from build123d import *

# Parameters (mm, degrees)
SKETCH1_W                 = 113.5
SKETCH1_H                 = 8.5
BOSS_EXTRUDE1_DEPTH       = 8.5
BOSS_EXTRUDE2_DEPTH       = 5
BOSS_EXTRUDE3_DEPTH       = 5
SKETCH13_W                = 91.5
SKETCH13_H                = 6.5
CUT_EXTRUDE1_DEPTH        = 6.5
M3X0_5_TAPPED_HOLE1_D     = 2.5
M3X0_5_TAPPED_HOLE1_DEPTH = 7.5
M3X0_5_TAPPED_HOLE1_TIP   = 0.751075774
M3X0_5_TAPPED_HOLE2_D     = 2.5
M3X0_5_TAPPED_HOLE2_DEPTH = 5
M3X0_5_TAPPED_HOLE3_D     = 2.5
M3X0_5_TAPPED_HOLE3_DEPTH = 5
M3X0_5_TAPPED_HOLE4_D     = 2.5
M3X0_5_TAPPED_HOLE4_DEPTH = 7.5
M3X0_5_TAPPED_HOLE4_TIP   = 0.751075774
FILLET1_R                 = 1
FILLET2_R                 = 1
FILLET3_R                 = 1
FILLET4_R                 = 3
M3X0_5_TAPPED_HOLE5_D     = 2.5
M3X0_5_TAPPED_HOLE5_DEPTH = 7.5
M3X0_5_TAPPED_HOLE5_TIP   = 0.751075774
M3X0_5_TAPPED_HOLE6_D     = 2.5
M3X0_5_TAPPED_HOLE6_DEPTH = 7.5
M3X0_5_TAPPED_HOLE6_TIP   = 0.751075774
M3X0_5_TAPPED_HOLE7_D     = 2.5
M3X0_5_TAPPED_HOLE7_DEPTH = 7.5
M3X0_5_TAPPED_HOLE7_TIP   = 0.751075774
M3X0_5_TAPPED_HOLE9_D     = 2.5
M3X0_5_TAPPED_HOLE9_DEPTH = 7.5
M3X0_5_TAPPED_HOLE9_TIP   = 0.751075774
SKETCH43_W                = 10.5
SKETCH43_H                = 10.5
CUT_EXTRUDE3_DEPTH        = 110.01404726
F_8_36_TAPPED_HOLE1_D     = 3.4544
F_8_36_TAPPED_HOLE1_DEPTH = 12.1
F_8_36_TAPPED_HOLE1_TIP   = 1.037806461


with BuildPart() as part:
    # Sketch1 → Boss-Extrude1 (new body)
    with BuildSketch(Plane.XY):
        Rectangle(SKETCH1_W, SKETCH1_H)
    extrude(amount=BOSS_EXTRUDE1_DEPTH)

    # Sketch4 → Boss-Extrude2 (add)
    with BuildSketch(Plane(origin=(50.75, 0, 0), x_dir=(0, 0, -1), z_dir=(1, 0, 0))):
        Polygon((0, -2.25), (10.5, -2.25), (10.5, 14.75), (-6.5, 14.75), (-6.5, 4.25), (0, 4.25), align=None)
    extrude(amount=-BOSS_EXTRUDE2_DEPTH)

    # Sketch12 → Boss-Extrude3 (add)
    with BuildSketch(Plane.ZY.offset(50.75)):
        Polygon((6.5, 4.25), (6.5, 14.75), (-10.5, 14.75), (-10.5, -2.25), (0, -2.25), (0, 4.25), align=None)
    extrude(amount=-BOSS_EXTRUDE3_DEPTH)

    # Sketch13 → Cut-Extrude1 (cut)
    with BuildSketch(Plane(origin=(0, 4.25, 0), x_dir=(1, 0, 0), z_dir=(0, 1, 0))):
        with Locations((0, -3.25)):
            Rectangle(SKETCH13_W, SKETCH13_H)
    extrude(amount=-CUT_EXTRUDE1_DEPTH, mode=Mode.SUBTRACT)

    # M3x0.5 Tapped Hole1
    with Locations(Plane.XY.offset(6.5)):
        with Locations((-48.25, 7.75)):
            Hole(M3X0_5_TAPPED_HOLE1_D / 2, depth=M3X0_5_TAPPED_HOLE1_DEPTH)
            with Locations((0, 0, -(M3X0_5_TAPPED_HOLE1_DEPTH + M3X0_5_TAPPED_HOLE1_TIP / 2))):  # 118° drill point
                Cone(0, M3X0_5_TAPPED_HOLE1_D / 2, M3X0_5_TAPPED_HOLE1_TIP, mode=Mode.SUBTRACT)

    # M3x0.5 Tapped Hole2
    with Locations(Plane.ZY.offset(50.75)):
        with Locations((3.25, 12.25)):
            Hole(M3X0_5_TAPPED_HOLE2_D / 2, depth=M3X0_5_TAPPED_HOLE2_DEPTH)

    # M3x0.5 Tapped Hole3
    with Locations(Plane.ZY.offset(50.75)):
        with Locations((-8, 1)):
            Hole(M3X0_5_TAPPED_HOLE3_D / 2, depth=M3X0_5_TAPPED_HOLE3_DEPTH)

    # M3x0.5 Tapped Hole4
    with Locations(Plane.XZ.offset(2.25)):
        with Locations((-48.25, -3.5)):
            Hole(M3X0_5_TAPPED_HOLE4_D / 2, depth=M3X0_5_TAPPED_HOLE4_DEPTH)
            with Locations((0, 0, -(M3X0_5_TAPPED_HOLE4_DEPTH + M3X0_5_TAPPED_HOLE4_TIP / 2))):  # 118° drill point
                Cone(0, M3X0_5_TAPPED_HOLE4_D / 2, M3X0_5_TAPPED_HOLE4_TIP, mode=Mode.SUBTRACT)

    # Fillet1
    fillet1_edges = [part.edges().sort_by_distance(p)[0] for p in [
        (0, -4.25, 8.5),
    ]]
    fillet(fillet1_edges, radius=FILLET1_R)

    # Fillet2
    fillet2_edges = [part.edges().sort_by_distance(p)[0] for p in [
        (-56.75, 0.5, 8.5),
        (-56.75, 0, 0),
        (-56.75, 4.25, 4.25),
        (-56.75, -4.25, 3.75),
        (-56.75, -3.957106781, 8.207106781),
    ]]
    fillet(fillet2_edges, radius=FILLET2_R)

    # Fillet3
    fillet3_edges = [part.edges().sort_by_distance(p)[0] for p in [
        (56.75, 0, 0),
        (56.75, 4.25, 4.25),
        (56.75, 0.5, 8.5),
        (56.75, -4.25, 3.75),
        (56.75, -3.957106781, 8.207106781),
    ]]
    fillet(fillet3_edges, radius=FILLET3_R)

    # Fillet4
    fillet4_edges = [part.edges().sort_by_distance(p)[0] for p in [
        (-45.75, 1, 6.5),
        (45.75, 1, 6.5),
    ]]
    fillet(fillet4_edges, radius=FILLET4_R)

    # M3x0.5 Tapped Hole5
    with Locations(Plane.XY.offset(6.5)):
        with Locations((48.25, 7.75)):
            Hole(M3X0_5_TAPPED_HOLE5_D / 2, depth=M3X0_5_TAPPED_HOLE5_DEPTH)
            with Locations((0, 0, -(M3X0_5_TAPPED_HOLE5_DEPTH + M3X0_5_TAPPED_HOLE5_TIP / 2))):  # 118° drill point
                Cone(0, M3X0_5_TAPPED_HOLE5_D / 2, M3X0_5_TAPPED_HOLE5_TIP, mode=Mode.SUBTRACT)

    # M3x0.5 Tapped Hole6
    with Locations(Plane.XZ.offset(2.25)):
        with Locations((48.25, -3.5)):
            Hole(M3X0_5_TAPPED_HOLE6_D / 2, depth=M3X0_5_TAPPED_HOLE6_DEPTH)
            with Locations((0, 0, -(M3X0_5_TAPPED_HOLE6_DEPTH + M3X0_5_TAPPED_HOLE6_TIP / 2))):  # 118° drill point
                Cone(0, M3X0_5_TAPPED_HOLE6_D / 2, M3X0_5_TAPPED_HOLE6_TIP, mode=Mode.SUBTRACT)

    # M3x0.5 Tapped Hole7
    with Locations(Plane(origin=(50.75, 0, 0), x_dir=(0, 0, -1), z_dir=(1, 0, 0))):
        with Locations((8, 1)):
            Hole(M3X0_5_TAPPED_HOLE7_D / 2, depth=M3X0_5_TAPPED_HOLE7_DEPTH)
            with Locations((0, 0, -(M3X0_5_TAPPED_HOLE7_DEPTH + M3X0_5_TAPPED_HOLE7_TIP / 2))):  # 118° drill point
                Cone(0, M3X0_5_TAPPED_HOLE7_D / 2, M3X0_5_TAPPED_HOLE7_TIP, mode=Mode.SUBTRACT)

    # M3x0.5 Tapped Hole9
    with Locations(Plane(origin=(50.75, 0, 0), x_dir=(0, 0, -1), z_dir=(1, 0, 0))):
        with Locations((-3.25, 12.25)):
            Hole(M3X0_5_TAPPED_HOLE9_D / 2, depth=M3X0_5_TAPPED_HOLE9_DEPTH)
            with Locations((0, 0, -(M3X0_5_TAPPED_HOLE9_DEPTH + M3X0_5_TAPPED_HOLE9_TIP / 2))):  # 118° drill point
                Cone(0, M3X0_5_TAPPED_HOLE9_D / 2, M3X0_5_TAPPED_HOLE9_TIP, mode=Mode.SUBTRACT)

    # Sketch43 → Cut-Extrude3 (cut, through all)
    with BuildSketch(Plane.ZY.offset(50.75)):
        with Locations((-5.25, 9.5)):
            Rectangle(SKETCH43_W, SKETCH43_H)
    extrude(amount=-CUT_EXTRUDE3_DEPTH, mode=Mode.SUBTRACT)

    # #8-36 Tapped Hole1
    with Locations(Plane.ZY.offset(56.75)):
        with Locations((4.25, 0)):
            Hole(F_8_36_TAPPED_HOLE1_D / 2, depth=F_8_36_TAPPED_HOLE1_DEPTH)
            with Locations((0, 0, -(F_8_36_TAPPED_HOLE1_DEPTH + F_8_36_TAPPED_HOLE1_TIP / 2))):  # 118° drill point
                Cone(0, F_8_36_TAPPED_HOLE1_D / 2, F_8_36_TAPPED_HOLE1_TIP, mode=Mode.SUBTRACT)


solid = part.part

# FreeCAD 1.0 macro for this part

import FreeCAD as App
import Part
import Sketcher
Q = App.Units.Quantity


def edges_at(feature, points):
    """Names of the edges that pass closest to the given points."""
    edges = feature.Shape.Edges
    near = lambda p: min(range(len(edges)), key=lambda i: edges[i].distToShape(Part.Vertex(*p))[0])
    return sorted({f"Edge{near(p) + 1}" for p in points})


def add_polygon(sketch, points):
    """Adds a closed chain of lines whose ends are joined by coincident constraints."""
    first, n = sketch.GeometryCount, len(points)
    for a, b in zip(points, points[1:] + points[:1]):
        sketch.addGeometry(Part.LineSegment(App.Vector(*a, 0), App.Vector(*b, 0)), False)
    for i in range(n):
        sketch.addConstraint(Sketcher.Constraint("Coincident", first + i, 2, first + (i + 1) % n, 1))

doc = App.newDocument("Part")
params = doc.addObject("Spreadsheet::Sheet", "Params")
for row, (alias, value) in enumerate([
    ("sketch1_width", "113.5 mm"),
    ("sketch1_height", "8.5 mm"),
    ("pad1_length", "8.5 mm"),
    ("sketch2_width", "17 mm"),
    ("sketch2_width2", "10.5 mm"),
    ("pad2_length", "5 mm"),
    ("sketch3_width", "17 mm"),
    ("sketch3_width2", "10.5 mm"),
    ("pad3_length", "5 mm"),
    ("sketch4_width", "91.5 mm"),
    ("sketch4_height", "6.5 mm"),
    ("pocket1_length", "6.5 mm"),
    ("sketch5_diameter", "2.5 mm"),
    ("hole_diameter", "2.5 mm"),
    ("hole_depth", "7.5 mm"),
    ("sketch6_diameter", "2.5 mm"),
    ("hole2_diameter", "2.5 mm"),
    ("hole2_depth", "5 mm"),
    ("sketch7_diameter", "2.5 mm"),
    ("hole3_diameter", "2.5 mm"),
    ("hole3_depth", "5 mm"),
    ("sketch8_diameter", "2.5 mm"),
    ("hole4_diameter", "2.5 mm"),
    ("hole4_depth", "7.5 mm"),
    ("fillet_radius", "1 mm"),
    ("fillet2_radius", "1 mm"),
    ("fillet3_radius", "1 mm"),
    ("fillet4_radius", "3 mm"),
    ("sketch9_diameter", "2.5 mm"),
    ("hole5_diameter", "2.5 mm"),
    ("hole5_depth", "7.5 mm"),
    ("sketch10_diameter", "2.5 mm"),
    ("hole6_diameter", "2.5 mm"),
    ("hole6_depth", "7.5 mm"),
    ("sketch11_diameter", "2.5 mm"),
    ("hole7_diameter", "2.5 mm"),
    ("hole7_depth", "7.5 mm"),
    ("sketch12_diameter", "2.5 mm"),
    ("hole8_diameter", "2.5 mm"),
    ("hole8_depth", "7.5 mm"),
    ("sketch13_width", "10.5 mm"),
    ("hole9_diameter", "3.4544 mm"),
    ("hole9_depth", "12.1 mm"),
], start=1):
    params.set(f"A{row}", alias)
    params.set(f"B{row}", "=" + value)
    params.setAlias(f"B{row}", alias)

body = doc.addObject("PartDesign::Body", "Body")

sketch1 = doc.addObject("Sketcher::SketchObject", "Sketch")
body.addObject(sketch1)
sketch1.AttachmentSupport = (doc.XY_Plane, [""])
sketch1.MapMode = "FlatFace"
add_polygon(sketch1, [(-57, 4), (-57, -4), (57, -4), (57, 4)])
sketch1.addConstraint(Sketcher.Constraint("Vertical", 0))
sketch1.addConstraint(Sketcher.Constraint("Horizontal", 1))
sketch1.addConstraint(Sketcher.Constraint("Vertical", 2))
sketch1.addConstraint(Sketcher.Constraint("Horizontal", 3))
sketch1.addConstraint(Sketcher.Constraint("Symmetric", 0, 2, 2, 2, -1, 1))
sketch1.addConstraint(Sketcher.Constraint("DistanceX", 1, 1, 1, 2, Q("113.5 mm")))
sketch1.addConstraint(Sketcher.Constraint("DistanceY", 0, 2, 0, 1, Q("8.5 mm")))
sketch1.setExpression("Constraints[9]", "Params.sketch1_width")
sketch1.setExpression("Constraints[10]", "Params.sketch1_height")
pad1 = doc.addObject("PartDesign::Pad", "Pad")
body.addObject(pad1)
pad1.Profile = sketch1
pad1.setExpression("Length", "Params.pad1_length")

sketch2 = doc.addObject("Sketcher::SketchObject", "Sketch001")
body.addObject(sketch2)
sketch2.AttachmentSupport = (doc.YZ_Plane, [""])
sketch2.MapMode = "FlatFace"
sketch2.AttachmentOffset = App.Placement(App.Vector(0, 0, 50.75), App.Rotation())
add_polygon(sketch2, [(-2, 0), (-2, -10), (15, -10), (15, 6), (4, 6), (4, 0)])
sketch2.addConstraint(Sketcher.Constraint("Vertical", 0))
sketch2.addConstraint(Sketcher.Constraint("Horizontal", 1))
sketch2.addConstraint(Sketcher.Constraint("Vertical", 2))
sketch2.addConstraint(Sketcher.Constraint("Horizontal", 3))
sketch2.addConstraint(Sketcher.Constraint("Vertical", 4))
sketch2.addConstraint(Sketcher.Constraint("Horizontal", 5))
sketch2.addConstraint(Sketcher.Constraint("PointOnObject", 4, 2, -1))
sketch2.addConstraint(Sketcher.Constraint("Equal", 3, 0))
sketch2.addConstraint(Sketcher.Constraint("Equal", 1, 2))
sketch2.addConstraint(Sketcher.Constraint("DistanceX", 1, 1, 1, 2, Q("17 mm")))
sketch2.addConstraint(Sketcher.Constraint("DistanceX", 3, 2, 3, 1, Q("10.5 mm")))
sketch2.addConstraint(Sketcher.Constraint("DistanceX", 0, 2, -1, 1, Q("2.25 mm")))
sketch2.setExpression("Constraints[15]", "Params.sketch2_width")
sketch2.setExpression("Constraints[16]", "Params.sketch2_width2")
pad2 = doc.addObject("PartDesign::Pad", "Pad001")
body.addObject(pad2)
pad2.Profile = sketch2
pad2.setExpression("Length", "Params.pad2_length")
pad2.Reversed = True

sketch3 = doc.addObject("Sketcher::SketchObject", "Sketch002")
body.addObject(sketch3)
sketch3.AttachmentSupport = (doc.YZ_Plane, [""])
sketch3.MapMode = "FlatFace"
sketch3.AttachmentOffset = App.Placement(App.Vector(0, 0, -50.75), App.Rotation())
add_polygon(sketch3, [(4, 6), (15, 6), (15, -10), (-2, -10), (-2, 0), (4, 0)])
sketch3.addConstraint(Sketcher.Constraint("Horizontal", 0))
sketch3.addConstraint(Sketcher.Constraint("Vertical", 1))
sketch3.addConstraint(Sketcher.Constraint("Horizontal", 2))
sketch3.addConstraint(Sketcher.Constraint("Vertical", 3))
sketch3.addConstraint(Sketcher.Constraint("Horizontal", 4))
sketch3.addConstraint(Sketcher.Constraint("Vertical", 5))
sketch3.addConstraint(Sketcher.Constraint("PointOnObject", 3, 2, -1))
sketch3.addConstraint(Sketcher.Constraint("Equal", 2, 1))
sketch3.addConstraint(Sketcher.Constraint("Equal", 0, 3))
sketch3.addConstraint(Sketcher.Constraint("DistanceX", 2, 2, 2, 1, Q("17 mm")))
sketch3.addConstraint(Sketcher.Constraint("DistanceX", 0, 1, 0, 2, Q("10.5 mm")))
sketch3.addConstraint(Sketcher.Constraint("DistanceX", -1, 1, 0, 2, Q("14.75 mm")))
sketch3.setExpression("Constraints[15]", "Params.sketch3_width")
sketch3.setExpression("Constraints[16]", "Params.sketch3_width2")
pad3 = doc.addObject("PartDesign::Pad", "Pad002")
body.addObject(pad3)
pad3.Profile = sketch3
pad3.setExpression("Length", "Params.pad3_length")

sketch4 = doc.addObject("Sketcher::SketchObject", "Sketch003")
body.addObject(sketch4)
sketch4.AttachmentSupport = (doc.XZ_Plane, [""])
sketch4.MapMode = "FlatFace"
sketch4.AttachmentOffset = App.Placement(App.Vector(0, 0, -4.25), App.Rotation())
add_polygon(sketch4, [(-46, 0), (-46, 6), (46, 6), (46, 0)])
sketch4.addConstraint(Sketcher.Constraint("Vertical", 0))
sketch4.addConstraint(Sketcher.Constraint("Horizontal", 1))
sketch4.addConstraint(Sketcher.Constraint("Vertical", 2))
sketch4.addConstraint(Sketcher.Constraint("Horizontal", 3))
sketch4.addConstraint(Sketcher.Constraint("Symmetric", 2, 2, 3, 2, -1, 1))
sketch4.addConstraint(Sketcher.Constraint("DistanceX", 1, 1, 1, 2, Q("91.5 mm")))
sketch4.addConstraint(Sketcher.Constraint("DistanceY", 0, 1, 0, 2, Q("6.5 mm")))
sketch4.setExpression("Constraints[9]", "Params.sketch4_width")
sketch4.setExpression("Constraints[10]", "Params.sketch4_height")
pocket1 = doc.addObject("PartDesign::Pocket", "Pocket")
body.addObject(pocket1)
pocket1.Profile = sketch4
pocket1.setExpression("Length", "Params.pocket1_length")
pocket1.Reversed = True

sketch5 = doc.addObject("Sketcher::SketchObject", "Sketch004")
body.addObject(sketch5)
sketch5.AttachmentSupport = (doc.XY_Plane, [""])
sketch5.MapMode = "FlatFace"
sketch5.AttachmentOffset = App.Placement(App.Vector(0, 0, 6.5), App.Rotation())
sketch5.addGeometry(Part.Circle(App.Vector(-48.2, 7.8, 0), App.Vector(0, 0, 1), 1.2), False)
sketch5.addConstraint(Sketcher.Constraint("Diameter", 0, Q("2.5 mm")))
sketch5.addConstraint(Sketcher.Constraint("DistanceX", 0, 3, -1, 1, Q("48.25 mm")))
sketch5.addConstraint(Sketcher.Constraint("DistanceY", -1, 1, 0, 3, Q("7.75 mm")))
sketch5.setExpression("Constraints[0]", "Params.sketch5_diameter")
doc.recompute()
hole = doc.addObject("PartDesign::Hole", "Hole")
body.addObject(hole)
hole.Profile = sketch5
hole.ThreadType = "None"
hole.setExpression("Diameter", "Params.hole_diameter")
hole.DepthType = "Dimension"
hole.setExpression("Depth", "Params.hole_depth")
hole.DrillPoint = "Angled"
hole.DrillPointAngle = 118

sketch6 = doc.addObject("Sketcher::SketchObject", "Sketch005")
body.addObject(sketch6)
sketch6.AttachmentSupport = (doc.YZ_Plane, [""])
sketch6.MapMode = "FlatFace"
sketch6.AttachmentOffset = App.Placement(App.Vector(0, 0, -50.75), App.Rotation())
sketch6.addGeometry(Part.Circle(App.Vector(12.2, 3.2, 0), App.Vector(0, 0, 1), 1.2), False)
sketch6.addConstraint(Sketcher.Constraint("Diameter", 0, Q("2.5 mm")))
sketch6.addConstraint(Sketcher.Constraint("DistanceX", -1, 1, 0, 3, Q("12.25 mm")))
sketch6.addConstraint(Sketcher.Constraint("DistanceY", -1, 1, 0, 3, Q("3.25 mm")))
sketch6.setExpression("Constraints[0]", "Params.sketch6_diameter")
doc.recompute()
hole2 = doc.addObject("PartDesign::Hole", "Hole001")
body.addObject(hole2)
hole2.Profile = sketch6
hole2.ThreadType = "None"
hole2.setExpression("Diameter", "Params.hole2_diameter")
hole2.DepthType = "Dimension"
hole2.setExpression("Depth", "Params.hole2_depth")
hole2.DrillPoint = "Flat"
hole2.Reversed = True

sketch7 = doc.addObject("Sketcher::SketchObject", "Sketch006")
body.addObject(sketch7)
sketch7.AttachmentSupport = (doc.YZ_Plane, [""])
sketch7.MapMode = "FlatFace"
sketch7.AttachmentOffset = App.Placement(App.Vector(0, 0, -50.75), App.Rotation())
sketch7.addGeometry(Part.Circle(App.Vector(1, -8, 0), App.Vector(0, 0, 1), 1.2), False)
sketch7.addConstraint(Sketcher.Constraint("Diameter", 0, Q("2.5 mm")))
sketch7.addConstraint(Sketcher.Constraint("DistanceX", -1, 1, 0, 3, Q("1 mm")))
sketch7.addConstraint(Sketcher.Constraint("DistanceY", 0, 3, -1, 1, Q("8 mm")))
sketch7.setExpression("Constraints[0]", "Params.sketch7_diameter")
doc.recompute()
hole3 = doc.addObject("PartDesign::Hole", "Hole002")
body.addObject(hole3)
hole3.Profile = sketch7
hole3.ThreadType = "None"
hole3.setExpression("Diameter", "Params.hole3_diameter")
hole3.DepthType = "Dimension"
hole3.setExpression("Depth", "Params.hole3_depth")
hole3.DrillPoint = "Flat"
hole3.Reversed = True

sketch8 = doc.addObject("Sketcher::SketchObject", "Sketch007")
body.addObject(sketch8)
sketch8.AttachmentSupport = (doc.XZ_Plane, [""])
sketch8.MapMode = "FlatFace"
sketch8.AttachmentOffset = App.Placement(App.Vector(0, 0, 2.25), App.Rotation())
sketch8.addGeometry(Part.Circle(App.Vector(-48.2, -3.5, 0), App.Vector(0, 0, 1), 1.2), False)
sketch8.addConstraint(Sketcher.Constraint("Diameter", 0, Q("2.5 mm")))
sketch8.addConstraint(Sketcher.Constraint("DistanceY", 0, 3, -1, 1, Q("3.5 mm")))
sketch8.addConstraint(Sketcher.Constraint("DistanceX", 0, 3, -1, 1, Q("48.25 mm")))
sketch8.setExpression("Constraints[0]", "Params.sketch8_diameter")
doc.recompute()
hole4 = doc.addObject("PartDesign::Hole", "Hole003")
body.addObject(hole4)
hole4.Profile = sketch8
hole4.ThreadType = "None"
hole4.setExpression("Diameter", "Params.hole4_diameter")
hole4.DepthType = "Dimension"
hole4.setExpression("Depth", "Params.hole4_depth")
hole4.DrillPoint = "Angled"
hole4.DrillPointAngle = 118
doc.recompute()

fillet = doc.addObject("PartDesign::Fillet", "Fillet")
body.addObject(fillet)
fillet.Base = (hole4, edges_at(hole4, [(0, -4.25, 8.5)]))
fillet.setExpression("Radius", "Params.fillet_radius")
doc.recompute()

fillet2 = doc.addObject("PartDesign::Fillet", "Fillet001")
body.addObject(fillet2)
fillet2.Base = (fillet, edges_at(fillet, [
    (-56.75, 0.5, 8.5),
    (-56.75, 0, 0),
    (-56.75, 4.25, 4.25),
    (-56.75, -4.25, 3.75),
    (-56.75, -3.957, 8.207),
]))
fillet2.setExpression("Radius", "Params.fillet2_radius")
doc.recompute()

fillet3 = doc.addObject("PartDesign::Fillet", "Fillet002")
body.addObject(fillet3)
fillet3.Base = (fillet2, edges_at(fillet2, [
    (56.75, 0, 0),
    (56.75, 4.25, 4.25),
    (56.75, 0.5, 8.5),
    (56.75, -4.25, 3.75),
    (56.75, -3.957, 8.207),
]))
fillet3.setExpression("Radius", "Params.fillet3_radius")
doc.recompute()

fillet4 = doc.addObject("PartDesign::Fillet", "Fillet003")
body.addObject(fillet4)
fillet4.Base = (fillet3, edges_at(fillet3, [(-45.75, 1, 6.5), (45.75, 1, 6.5)]))
fillet4.setExpression("Radius", "Params.fillet4_radius")

sketch9 = doc.addObject("Sketcher::SketchObject", "Sketch008")
body.addObject(sketch9)
sketch9.AttachmentSupport = (doc.XY_Plane, [""])
sketch9.MapMode = "FlatFace"
sketch9.AttachmentOffset = App.Placement(App.Vector(0, 0, 6.5), App.Rotation())
sketch9.addGeometry(Part.Circle(App.Vector(48.2, 7.8, 0), App.Vector(0, 0, 1), 1.2), False)
sketch9.addConstraint(Sketcher.Constraint("Diameter", 0, Q("2.5 mm")))
sketch9.addConstraint(Sketcher.Constraint("DistanceX", -1, 1, 0, 3, Q("48.25 mm")))
sketch9.addConstraint(Sketcher.Constraint("DistanceY", -1, 1, 0, 3, Q("7.75 mm")))
sketch9.setExpression("Constraints[0]", "Params.sketch9_diameter")
doc.recompute()
hole5 = doc.addObject("PartDesign::Hole", "Hole004")
body.addObject(hole5)
hole5.Profile = sketch9
hole5.ThreadType = "None"
hole5.setExpression("Diameter", "Params.hole5_diameter")
hole5.DepthType = "Dimension"
hole5.setExpression("Depth", "Params.hole5_depth")
hole5.DrillPoint = "Angled"
hole5.DrillPointAngle = 118

sketch10 = doc.addObject("Sketcher::SketchObject", "Sketch009")
body.addObject(sketch10)
sketch10.AttachmentSupport = (doc.XZ_Plane, [""])
sketch10.MapMode = "FlatFace"
sketch10.AttachmentOffset = App.Placement(App.Vector(0, 0, 2.25), App.Rotation())
sketch10.addGeometry(Part.Circle(App.Vector(48.2, -3.5, 0), App.Vector(0, 0, 1), 1.2), False)
sketch10.addConstraint(Sketcher.Constraint("Diameter", 0, Q("2.5 mm")))
sketch10.addConstraint(Sketcher.Constraint("DistanceY", 0, 3, -1, 1, Q("3.5 mm")))
sketch10.addConstraint(Sketcher.Constraint("DistanceX", -1, 1, 0, 3, Q("48.25 mm")))
sketch10.setExpression("Constraints[0]", "Params.sketch10_diameter")
doc.recompute()
hole6 = doc.addObject("PartDesign::Hole", "Hole005")
body.addObject(hole6)
hole6.Profile = sketch10
hole6.ThreadType = "None"
hole6.setExpression("Diameter", "Params.hole6_diameter")
hole6.DepthType = "Dimension"
hole6.setExpression("Depth", "Params.hole6_depth")
hole6.DrillPoint = "Angled"
hole6.DrillPointAngle = 118

sketch11 = doc.addObject("Sketcher::SketchObject", "Sketch010")
body.addObject(sketch11)
sketch11.AttachmentSupport = (doc.YZ_Plane, [""])
sketch11.MapMode = "FlatFace"
sketch11.AttachmentOffset = App.Placement(App.Vector(0, 0, 50.75), App.Rotation())
sketch11.addGeometry(Part.Circle(App.Vector(1, -8, 0), App.Vector(0, 0, 1), 1.2), False)
sketch11.addConstraint(Sketcher.Constraint("Diameter", 0, Q("2.5 mm")))
sketch11.addConstraint(Sketcher.Constraint("DistanceX", -1, 1, 0, 3, Q("1 mm")))
sketch11.addConstraint(Sketcher.Constraint("DistanceY", 0, 3, -1, 1, Q("8 mm")))
sketch11.setExpression("Constraints[0]", "Params.sketch11_diameter")
doc.recompute()
hole7 = doc.addObject("PartDesign::Hole", "Hole006")
body.addObject(hole7)
hole7.Profile = sketch11
hole7.ThreadType = "None"
hole7.setExpression("Diameter", "Params.hole7_diameter")
hole7.DepthType = "Dimension"
hole7.setExpression("Depth", "Params.hole7_depth")
hole7.DrillPoint = "Angled"
hole7.DrillPointAngle = 118

sketch12 = doc.addObject("Sketcher::SketchObject", "Sketch011")
body.addObject(sketch12)
sketch12.AttachmentSupport = (doc.YZ_Plane, [""])
sketch12.MapMode = "FlatFace"
sketch12.AttachmentOffset = App.Placement(App.Vector(0, 0, 50.75), App.Rotation())
sketch12.addGeometry(Part.Circle(App.Vector(12.2, 3.2, 0), App.Vector(0, 0, 1), 1.2), False)
sketch12.addConstraint(Sketcher.Constraint("Diameter", 0, Q("2.5 mm")))
sketch12.addConstraint(Sketcher.Constraint("DistanceX", -1, 1, 0, 3, Q("12.25 mm")))
sketch12.addConstraint(Sketcher.Constraint("DistanceY", -1, 1, 0, 3, Q("3.25 mm")))
sketch12.setExpression("Constraints[0]", "Params.sketch12_diameter")
doc.recompute()
hole8 = doc.addObject("PartDesign::Hole", "Hole007")
body.addObject(hole8)
hole8.Profile = sketch12
hole8.ThreadType = "None"
hole8.setExpression("Diameter", "Params.hole8_diameter")
hole8.DepthType = "Dimension"
hole8.setExpression("Depth", "Params.hole8_depth")
hole8.DrillPoint = "Angled"
hole8.DrillPointAngle = 118

sketch13 = doc.addObject("Sketcher::SketchObject", "Sketch012")
body.addObject(sketch13)
sketch13.AttachmentSupport = (doc.YZ_Plane, [""])
sketch13.MapMode = "FlatFace"
sketch13.AttachmentOffset = App.Placement(App.Vector(0, 0, -50.75), App.Rotation())
add_polygon(sketch13, [(15, -10), (4, -10), (4, 0), (15, 0)])
sketch13.addConstraint(Sketcher.Constraint("Horizontal", 0))
sketch13.addConstraint(Sketcher.Constraint("Vertical", 1))
sketch13.addConstraint(Sketcher.Constraint("Horizontal", 2))
sketch13.addConstraint(Sketcher.Constraint("Vertical", 3))
sketch13.addConstraint(Sketcher.Constraint("PointOnObject", 1, 2, -1))
sketch13.addConstraint(Sketcher.Constraint("Equal", 2, 1))
sketch13.addConstraint(Sketcher.Constraint("DistanceX", 0, 2, 0, 1, Q("10.5 mm")))
sketch13.addConstraint(Sketcher.Constraint("DistanceX", -1, 1, 0, 2, Q("4.25 mm")))
sketch13.setExpression("Constraints[10]", "Params.sketch13_width")
pocket2 = doc.addObject("PartDesign::Pocket", "Pocket001")
body.addObject(pocket2)
pocket2.Profile = sketch13
pocket2.Type = "ThroughAll"
pocket2.Reversed = True

sketch14 = doc.addObject("Sketcher::SketchObject", "Sketch013")
body.addObject(sketch14)
sketch14.AttachmentSupport = (doc.YZ_Plane, [""])
sketch14.MapMode = "FlatFace"
sketch14.AttachmentOffset = App.Placement(App.Vector(0, 0, -56.75), App.Rotation())
sketch14.addGeometry(Part.Circle(App.Vector(0, 4.2, 0), App.Vector(0, 0, 1), 1.7), False)
sketch14.addConstraint(Sketcher.Constraint("PointOnObject", 0, 3, -2))
sketch14.addConstraint(Sketcher.Constraint("Diameter", 0, Q("3.4544 mm")))
sketch14.addConstraint(Sketcher.Constraint("DistanceY", -1, 1, 0, 3, Q("4.25 mm")))
doc.recompute()
hole9 = doc.addObject("PartDesign::Hole", "Hole008")
body.addObject(hole9)
hole9.Profile = sketch14
hole9.ThreadType = "None"
hole9.setExpression("Diameter", "Params.hole9_diameter")
hole9.DepthType = "Dimension"
hole9.setExpression("Depth", "Params.hole9_depth")
hole9.DrillPoint = "Angled"
hole9.DrillPointAngle = 118
hole9.Reversed = True

doc.recompute()
